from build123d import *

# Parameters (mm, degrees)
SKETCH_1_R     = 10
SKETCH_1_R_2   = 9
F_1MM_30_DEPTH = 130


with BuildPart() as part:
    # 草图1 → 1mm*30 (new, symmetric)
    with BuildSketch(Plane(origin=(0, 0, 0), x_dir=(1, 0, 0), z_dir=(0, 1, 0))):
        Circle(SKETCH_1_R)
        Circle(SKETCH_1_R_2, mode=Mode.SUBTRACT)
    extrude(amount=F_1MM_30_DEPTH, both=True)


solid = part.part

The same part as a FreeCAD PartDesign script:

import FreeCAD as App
import Part
import Sketcher

doc = App.newDocument("Part")
params = doc.addObject("Spreadsheet::Sheet", "Params")
for row, (alias, value) in enumerate([
    ("sketch1_diameter", "20 mm"),
    ("sketch1_diameter2", "18 mm"),
    ("pad1_length", "260 mm"),
], start=1):
    params.set(f"A{row}", alias)
    params.set(f"B{row}", "=" + value)
    params.setAlias(f"B{row}", alias)

body = doc.addObject("PartDesign::Body", "Body")

# Sketch on XZ plane
sketch1 = body.newObject("Sketcher::SketchObject", "Sketch")
sketch1.AttachmentSupport = (doc.getObject("XZ_Plane"), [""])
sketch1.MapMode = "FlatFace"
sketch1.addGeometry(Part.Circle(App.Vector(0, 0, 0), App.Vector(0, 0, 1), 10), False)
sketch1.addGeometry(Part.Circle(App.Vector(0, 0, 0), App.Vector(0, 0, 1), 9), False)
sketch1.addConstraint(Sketcher.Constraint("Coincident", 0, 3, -1, 1))
sketch1.addConstraint(Sketcher.Constraint("Coincident", 1, 3, -1, 1))
sketch1.addConstraint(Sketcher.Constraint("Diameter", 0, 20.0))
sketch1.addConstraint(Sketcher.Constraint("Diameter", 1, 18.0))
sketch1.setExpression("Constraints[2]", "Params.sketch1_diameter")
sketch1.setExpression("Constraints[3]", "Params.sketch1_diameter2")
pad1 = body.newObject("PartDesign::Pad", "Pad")
pad1.Profile = sketch1
pad1.setExpression("Length", "Params.pad1_length")
pad1.Midplane = True

doc.recompute()
